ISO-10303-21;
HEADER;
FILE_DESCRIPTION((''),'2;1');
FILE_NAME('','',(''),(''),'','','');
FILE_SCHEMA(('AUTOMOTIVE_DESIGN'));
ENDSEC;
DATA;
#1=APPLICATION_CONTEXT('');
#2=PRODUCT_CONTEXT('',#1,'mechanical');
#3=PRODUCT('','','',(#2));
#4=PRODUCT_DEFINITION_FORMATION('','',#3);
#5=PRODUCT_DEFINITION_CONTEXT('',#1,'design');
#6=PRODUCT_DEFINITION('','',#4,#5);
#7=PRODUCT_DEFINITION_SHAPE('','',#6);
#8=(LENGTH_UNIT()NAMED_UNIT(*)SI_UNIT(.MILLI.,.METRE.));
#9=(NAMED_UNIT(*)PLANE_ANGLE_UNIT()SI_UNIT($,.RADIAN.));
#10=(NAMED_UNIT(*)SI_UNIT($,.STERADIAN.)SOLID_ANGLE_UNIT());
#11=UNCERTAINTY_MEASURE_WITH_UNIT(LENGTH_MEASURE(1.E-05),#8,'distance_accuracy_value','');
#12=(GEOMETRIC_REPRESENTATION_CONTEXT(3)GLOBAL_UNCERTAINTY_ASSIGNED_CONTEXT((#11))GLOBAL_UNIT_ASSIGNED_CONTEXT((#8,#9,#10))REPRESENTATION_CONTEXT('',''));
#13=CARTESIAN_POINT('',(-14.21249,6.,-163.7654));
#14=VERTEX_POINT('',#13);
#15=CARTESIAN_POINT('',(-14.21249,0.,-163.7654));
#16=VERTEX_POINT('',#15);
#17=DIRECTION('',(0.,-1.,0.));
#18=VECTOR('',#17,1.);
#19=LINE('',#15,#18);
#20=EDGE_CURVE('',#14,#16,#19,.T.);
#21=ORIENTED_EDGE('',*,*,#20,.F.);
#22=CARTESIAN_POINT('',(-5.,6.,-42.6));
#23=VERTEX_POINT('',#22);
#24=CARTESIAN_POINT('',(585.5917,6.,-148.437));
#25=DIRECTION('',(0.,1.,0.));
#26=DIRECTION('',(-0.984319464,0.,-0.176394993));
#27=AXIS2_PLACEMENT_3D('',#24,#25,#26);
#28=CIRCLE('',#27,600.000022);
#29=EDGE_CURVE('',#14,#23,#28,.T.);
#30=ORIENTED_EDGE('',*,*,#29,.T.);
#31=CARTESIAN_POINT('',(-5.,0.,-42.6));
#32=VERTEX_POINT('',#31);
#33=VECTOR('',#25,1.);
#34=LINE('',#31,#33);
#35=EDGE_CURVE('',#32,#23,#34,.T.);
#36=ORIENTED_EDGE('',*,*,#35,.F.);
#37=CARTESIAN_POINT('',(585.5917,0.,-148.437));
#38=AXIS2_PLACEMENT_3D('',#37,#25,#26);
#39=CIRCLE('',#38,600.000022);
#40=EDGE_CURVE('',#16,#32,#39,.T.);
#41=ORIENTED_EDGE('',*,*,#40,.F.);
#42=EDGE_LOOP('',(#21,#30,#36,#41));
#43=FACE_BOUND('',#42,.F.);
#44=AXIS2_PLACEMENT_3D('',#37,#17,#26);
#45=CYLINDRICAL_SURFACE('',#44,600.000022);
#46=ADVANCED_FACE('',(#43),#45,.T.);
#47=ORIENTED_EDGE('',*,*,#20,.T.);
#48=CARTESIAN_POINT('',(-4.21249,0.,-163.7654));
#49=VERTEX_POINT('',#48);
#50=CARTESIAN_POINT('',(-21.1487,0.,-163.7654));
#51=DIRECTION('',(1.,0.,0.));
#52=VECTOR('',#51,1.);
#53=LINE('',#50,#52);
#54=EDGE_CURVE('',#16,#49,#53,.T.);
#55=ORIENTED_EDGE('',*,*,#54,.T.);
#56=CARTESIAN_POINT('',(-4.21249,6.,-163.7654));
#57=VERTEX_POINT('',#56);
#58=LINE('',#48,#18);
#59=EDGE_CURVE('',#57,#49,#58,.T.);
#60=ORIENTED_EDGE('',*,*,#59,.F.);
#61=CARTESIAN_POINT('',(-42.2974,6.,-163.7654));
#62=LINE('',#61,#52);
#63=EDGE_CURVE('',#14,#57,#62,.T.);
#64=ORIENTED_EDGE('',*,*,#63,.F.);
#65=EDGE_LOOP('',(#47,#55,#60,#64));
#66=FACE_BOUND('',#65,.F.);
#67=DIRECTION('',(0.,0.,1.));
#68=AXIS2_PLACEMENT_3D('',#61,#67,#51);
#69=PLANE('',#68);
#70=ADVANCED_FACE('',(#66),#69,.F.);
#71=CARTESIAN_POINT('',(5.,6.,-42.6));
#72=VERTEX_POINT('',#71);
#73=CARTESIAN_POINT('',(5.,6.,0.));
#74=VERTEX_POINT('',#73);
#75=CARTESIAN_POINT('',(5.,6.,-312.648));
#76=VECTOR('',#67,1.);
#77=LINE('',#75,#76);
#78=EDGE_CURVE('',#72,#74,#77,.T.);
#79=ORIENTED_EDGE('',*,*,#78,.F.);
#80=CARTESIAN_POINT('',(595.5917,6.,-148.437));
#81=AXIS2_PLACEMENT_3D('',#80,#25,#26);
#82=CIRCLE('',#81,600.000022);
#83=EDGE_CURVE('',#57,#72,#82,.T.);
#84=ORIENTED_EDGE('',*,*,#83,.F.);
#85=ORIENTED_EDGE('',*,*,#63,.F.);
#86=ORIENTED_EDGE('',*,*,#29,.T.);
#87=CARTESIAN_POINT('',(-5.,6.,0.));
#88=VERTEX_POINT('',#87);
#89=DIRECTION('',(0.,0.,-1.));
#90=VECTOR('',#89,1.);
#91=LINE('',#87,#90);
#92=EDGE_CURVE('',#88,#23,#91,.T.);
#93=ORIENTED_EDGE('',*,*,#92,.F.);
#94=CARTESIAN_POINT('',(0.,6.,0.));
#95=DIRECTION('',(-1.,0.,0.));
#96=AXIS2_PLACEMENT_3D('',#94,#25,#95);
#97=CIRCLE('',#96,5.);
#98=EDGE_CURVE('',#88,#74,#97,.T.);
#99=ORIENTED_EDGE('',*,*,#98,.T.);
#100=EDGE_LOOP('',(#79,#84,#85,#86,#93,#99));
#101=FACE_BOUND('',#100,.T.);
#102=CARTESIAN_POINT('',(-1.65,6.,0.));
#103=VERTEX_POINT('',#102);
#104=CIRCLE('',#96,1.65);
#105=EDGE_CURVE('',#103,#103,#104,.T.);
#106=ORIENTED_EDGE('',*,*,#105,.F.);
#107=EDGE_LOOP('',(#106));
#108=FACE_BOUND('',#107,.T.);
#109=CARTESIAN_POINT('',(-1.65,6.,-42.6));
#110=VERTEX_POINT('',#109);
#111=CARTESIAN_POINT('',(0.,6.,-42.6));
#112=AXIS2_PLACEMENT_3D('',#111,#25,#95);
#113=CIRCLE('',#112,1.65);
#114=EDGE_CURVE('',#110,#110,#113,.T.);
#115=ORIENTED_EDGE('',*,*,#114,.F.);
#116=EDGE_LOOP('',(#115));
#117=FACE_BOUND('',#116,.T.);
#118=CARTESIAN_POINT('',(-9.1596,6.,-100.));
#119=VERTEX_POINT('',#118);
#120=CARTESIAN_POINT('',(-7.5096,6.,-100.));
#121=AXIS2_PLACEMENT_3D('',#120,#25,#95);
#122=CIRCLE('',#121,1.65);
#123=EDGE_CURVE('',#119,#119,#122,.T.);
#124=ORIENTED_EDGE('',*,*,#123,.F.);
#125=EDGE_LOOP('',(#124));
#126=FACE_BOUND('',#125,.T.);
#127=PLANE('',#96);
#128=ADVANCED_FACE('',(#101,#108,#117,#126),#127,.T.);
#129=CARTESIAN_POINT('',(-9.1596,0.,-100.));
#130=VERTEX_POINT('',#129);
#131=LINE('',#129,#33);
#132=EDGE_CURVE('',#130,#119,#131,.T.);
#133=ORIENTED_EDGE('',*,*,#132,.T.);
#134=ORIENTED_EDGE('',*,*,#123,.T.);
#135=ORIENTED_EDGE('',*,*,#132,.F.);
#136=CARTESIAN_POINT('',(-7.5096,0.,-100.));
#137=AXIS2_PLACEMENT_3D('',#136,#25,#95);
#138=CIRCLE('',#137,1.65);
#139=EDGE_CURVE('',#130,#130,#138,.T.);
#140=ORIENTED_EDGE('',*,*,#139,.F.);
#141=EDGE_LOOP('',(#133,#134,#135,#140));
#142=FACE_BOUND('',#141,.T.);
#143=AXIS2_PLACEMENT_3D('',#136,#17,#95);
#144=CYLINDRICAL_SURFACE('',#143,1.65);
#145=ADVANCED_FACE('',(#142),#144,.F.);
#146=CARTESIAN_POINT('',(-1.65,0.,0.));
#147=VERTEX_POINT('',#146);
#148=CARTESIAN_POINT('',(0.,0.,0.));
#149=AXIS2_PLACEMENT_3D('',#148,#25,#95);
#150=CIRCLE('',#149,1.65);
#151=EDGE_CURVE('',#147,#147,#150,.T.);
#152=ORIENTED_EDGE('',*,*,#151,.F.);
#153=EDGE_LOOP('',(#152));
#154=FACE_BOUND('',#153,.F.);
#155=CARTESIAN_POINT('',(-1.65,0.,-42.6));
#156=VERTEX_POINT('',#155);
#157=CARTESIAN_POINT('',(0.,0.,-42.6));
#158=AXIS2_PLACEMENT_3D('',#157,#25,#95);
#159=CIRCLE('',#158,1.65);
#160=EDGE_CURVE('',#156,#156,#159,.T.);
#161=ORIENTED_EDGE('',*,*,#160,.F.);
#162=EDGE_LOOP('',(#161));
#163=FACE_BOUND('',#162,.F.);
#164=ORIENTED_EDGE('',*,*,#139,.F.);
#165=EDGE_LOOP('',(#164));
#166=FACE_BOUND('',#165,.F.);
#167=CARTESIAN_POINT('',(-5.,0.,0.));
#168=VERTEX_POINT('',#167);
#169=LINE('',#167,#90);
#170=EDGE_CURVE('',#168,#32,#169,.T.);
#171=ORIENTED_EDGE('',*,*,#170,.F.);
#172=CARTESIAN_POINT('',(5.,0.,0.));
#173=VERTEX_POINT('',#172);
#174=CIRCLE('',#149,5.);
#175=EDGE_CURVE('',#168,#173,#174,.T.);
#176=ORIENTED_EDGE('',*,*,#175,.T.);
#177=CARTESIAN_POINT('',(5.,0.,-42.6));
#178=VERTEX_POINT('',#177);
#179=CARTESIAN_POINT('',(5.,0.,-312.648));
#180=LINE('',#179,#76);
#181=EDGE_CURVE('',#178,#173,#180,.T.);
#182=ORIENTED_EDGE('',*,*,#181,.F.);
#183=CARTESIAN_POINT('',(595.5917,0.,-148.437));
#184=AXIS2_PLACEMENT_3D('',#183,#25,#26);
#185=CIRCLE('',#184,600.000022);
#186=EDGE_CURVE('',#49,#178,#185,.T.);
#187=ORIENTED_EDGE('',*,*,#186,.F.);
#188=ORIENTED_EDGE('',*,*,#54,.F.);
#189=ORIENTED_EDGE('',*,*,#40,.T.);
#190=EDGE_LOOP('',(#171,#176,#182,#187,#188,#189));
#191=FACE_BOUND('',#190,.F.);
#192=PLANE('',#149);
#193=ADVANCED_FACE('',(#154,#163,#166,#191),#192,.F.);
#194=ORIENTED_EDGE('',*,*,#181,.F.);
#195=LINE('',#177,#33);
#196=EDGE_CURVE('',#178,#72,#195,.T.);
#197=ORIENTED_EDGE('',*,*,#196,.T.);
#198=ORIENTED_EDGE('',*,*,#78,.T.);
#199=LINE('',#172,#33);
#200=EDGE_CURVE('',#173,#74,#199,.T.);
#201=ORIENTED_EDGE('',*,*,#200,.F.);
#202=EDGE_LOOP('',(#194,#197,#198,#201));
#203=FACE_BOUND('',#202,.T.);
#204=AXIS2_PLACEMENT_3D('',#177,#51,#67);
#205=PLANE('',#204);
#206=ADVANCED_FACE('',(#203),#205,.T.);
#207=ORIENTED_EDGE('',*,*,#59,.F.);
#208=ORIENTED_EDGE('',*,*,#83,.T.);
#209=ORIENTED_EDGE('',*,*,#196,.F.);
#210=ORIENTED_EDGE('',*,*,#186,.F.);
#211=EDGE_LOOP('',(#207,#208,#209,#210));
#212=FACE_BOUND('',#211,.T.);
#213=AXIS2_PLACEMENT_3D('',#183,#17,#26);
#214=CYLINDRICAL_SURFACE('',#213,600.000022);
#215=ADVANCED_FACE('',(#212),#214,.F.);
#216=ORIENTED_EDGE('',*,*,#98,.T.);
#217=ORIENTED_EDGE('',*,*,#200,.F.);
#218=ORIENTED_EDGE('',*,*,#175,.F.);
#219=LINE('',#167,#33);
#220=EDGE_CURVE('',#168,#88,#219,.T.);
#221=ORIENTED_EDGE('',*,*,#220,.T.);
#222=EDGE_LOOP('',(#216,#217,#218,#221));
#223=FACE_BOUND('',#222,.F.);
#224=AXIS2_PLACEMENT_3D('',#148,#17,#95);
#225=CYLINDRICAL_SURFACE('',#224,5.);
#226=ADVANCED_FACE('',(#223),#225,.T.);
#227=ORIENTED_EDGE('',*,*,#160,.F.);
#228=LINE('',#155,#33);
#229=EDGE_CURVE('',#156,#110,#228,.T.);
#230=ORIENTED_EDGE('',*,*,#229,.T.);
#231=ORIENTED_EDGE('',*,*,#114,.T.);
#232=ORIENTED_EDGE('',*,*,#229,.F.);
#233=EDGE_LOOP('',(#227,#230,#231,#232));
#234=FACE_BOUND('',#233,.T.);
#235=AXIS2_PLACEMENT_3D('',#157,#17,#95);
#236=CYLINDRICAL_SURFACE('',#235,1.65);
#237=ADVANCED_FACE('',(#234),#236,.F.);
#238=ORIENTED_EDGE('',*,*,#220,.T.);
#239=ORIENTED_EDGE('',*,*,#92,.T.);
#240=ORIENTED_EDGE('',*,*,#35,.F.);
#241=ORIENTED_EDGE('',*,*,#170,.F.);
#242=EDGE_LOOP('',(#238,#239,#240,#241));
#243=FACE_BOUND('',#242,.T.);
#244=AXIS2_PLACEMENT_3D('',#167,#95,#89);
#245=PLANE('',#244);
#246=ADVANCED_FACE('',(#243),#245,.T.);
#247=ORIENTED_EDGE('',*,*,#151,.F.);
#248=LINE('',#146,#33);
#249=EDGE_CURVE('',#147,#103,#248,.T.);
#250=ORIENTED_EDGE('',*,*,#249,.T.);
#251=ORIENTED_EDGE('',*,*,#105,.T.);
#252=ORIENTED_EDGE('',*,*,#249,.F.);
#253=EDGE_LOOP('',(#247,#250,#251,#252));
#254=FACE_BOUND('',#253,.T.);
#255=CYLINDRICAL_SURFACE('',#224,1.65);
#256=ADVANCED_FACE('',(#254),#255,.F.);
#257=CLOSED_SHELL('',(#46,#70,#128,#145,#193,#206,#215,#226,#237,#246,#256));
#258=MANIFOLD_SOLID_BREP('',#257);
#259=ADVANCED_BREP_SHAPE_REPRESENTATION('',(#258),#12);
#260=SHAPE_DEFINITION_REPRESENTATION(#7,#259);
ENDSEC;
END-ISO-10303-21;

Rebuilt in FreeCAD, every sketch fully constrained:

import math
import FreeCAD as App
import Part
import Sketcher

V = App.Vector


def add_polygon(sketch, points):
    """Adds a closed chain of lines whose ends are joined by coincident constraints."""
    first, n = sketch.GeometryCount, len(points)
    for a, b in zip(points, points[1:] + points[:1]):
        sketch.addGeometry(Part.LineSegment(App.Vector(*a, 0), App.Vector(*b, 0)), False)
    for i in range(n):
        sketch.addConstraint(Sketcher.Constraint("Coincident", first + i, 2, first + (i + 1) % n, 1))

doc = App.newDocument("Part")
body = doc.addObject("PartDesign::Body", "Body")

# Sketch on XZ plane
sketch1 = doc.addObject("Sketcher::SketchObject", "Sketch")
body.addObject(sketch1)
sketch1.AttachmentSupport = (doc.XZ_Plane, [""])
sketch1.MapMode = "FlatFace"
sketch1.addGeometry([
    Part.LineSegment(V(-5, -42.6, 0), V(-5, 0, 0)),  # 0
    Part.ArcOfCircle(Part.Circle(V(0, 0, 0), V(0, 0, 1), 5), math.radians(0), math.radians(180)),  # 1
    Part.LineSegment(V(5, 0, 0), V(5, -42.6, 0)),  # 2
    Part.ArcOfCircle(Part.Circle(V(595.6, -148.4, 0), V(0, 0, 1), 600), math.radians(170), math.radians(190)),  # 3
    Part.LineSegment(V(5, -254.3, 0), V(5, -312.6, 0)),  # 4
    Part.ArcOfCircle(Part.Circle(V(0, -312.6, 0), V(0, 0, 1), 5), math.radians(180), math.radians(360)),  # 5
    Part.LineSegment(V(-5, -312.6, 0), V(-5, -254.3, 0)),  # 6
    Part.ArcOfCircle(Part.Circle(V(585.6, -148.4, 0), V(0, 0, 1), 600), math.radians(170), math.radians(190)),  # 7
    Part.Circle(V(0, -312.6, 0), V(0, 0, 1), 1.6),  # 8
    Part.Circle(V(0, -254.3, 0), V(0, 0, 1), 1.6),  # 9
    Part.Circle(V(0, -42.6, 0), V(0, 0, 1), 1.6),  # 10
    Part.Circle(V(0, 0, 0), V(0, 0, 1), 1.6),  # 11
    Part.Circle(V(-7.5, -100, 0), V(0, 0, 1), 1.6),  # 12
], False)
sketch1.addConstraint([
    Sketcher.Constraint("Tangent", 0, 2, 1, 2),
    Sketcher.Constraint("Tangent", 1, 1, 2, 1),
    Sketcher.Constraint("Coincident", 2, 2, 3, 1),
    Sketcher.Constraint("Coincident", 3, 2, 4, 1),
    Sketcher.Constraint("Tangent", 4, 2, 5, 2),
    Sketcher.Constraint("Tangent", 5, 1, 6, 1),
    Sketcher.Constraint("Coincident", 6, 2, 7, 2),
    Sketcher.Constraint("Coincident", 7, 1, 0, 1),
    Sketcher.Constraint("Vertical", 0),
    Sketcher.Constraint("Vertical", 2),
    Sketcher.Constraint("Vertical", 4),
    Sketcher.Constraint("Vertical", 6),
    Sketcher.Constraint("Coincident", 1, 3, -1, 1),
    Sketcher.Constraint("Coincident", 11, 3, -1, 1),
    Sketcher.Constraint("Coincident", 8, 3, 5, 3),
    Sketcher.Constraint("Equal", 1, 5),
    Sketcher.Constraint("Equal", 3, 7),
    Sketcher.Constraint("Equal", 8, 9),
    Sketcher.Constraint("Equal", 9, 10),
    Sketcher.Constraint("Equal", 10, 11),
    Sketcher.Constraint("Equal", 11, 12),
    Sketcher.Constraint("Symmetric", 3, 2, 6, 2, -2),
    Sketcher.Constraint("PointOnObject", 9, 3, -2),
    Sketcher.Constraint("PointOnObject", 10, 3, -2),
    Sketcher.Constraint("Horizontal", 3, 3, 7, 3),
    Sketcher.Constraint("Horizontal", 10, 3, 2, 2),
    Sketcher.Constraint("Horizontal", 9, 3, 3, 2),
    Sketcher.Constraint("Radius", 1, 5.0),
    Sketcher.Constraint("Radius", 3, 600.0),
    Sketcher.Constraint("Diameter", 8, 3.3),
    Sketcher.Constraint("DistanceY", 0, 1, 0, 2, 42.6),
    Sketcher.Constraint("DistanceY", 12, 3, -1, 1, 100.0),
    Sketcher.Constraint("DistanceY", 5, 3, -1, 1, 312.648),
    Sketcher.Constraint("DistanceY", 9, 3, -1, 1, 254.274),
    Sketcher.Constraint("DistanceX", 12, 3, -1, 1, 7.5096),
])
pad1 = doc.addObject("PartDesign::Pad", "Pad")
body.addObject(pad1)
pad1.Profile = sketch1
pad1.Length = 6
pad1.Reversed = True

# Sketch on XZ plane
sketch2 = doc.addObject("Sketcher::SketchObject", "Sketch001")
body.addObject(sketch2)
sketch2.AttachmentSupport = (doc.XZ_Plane, [""])
sketch2.MapMode = "FlatFace"
sketch2.AttachmentOffset = App.Placement(V(0, 0, -6), App.Rotation())
add_polygon(sketch2, [(118, -337), (-109, -337), (-109, 100), (118, 100)])  # lines 0-3
add_polygon(sketch2, [(-42, 16), (-42, -164), (39, -164), (39, 16)])  # lines 4-7
sketch2.addConstraint([
    Sketcher.Constraint("Horizontal", 0),
    Sketcher.Constraint("Vertical", 1),
    Sketcher.Constraint("Horizontal", 2),
    Sketcher.Constraint("Vertical", 3),
    Sketcher.Constraint("Vertical", 4),
    Sketcher.Constraint("Horizontal", 5),
    Sketcher.Constraint("Vertical", 6),
    Sketcher.Constraint("Horizontal", 7),
    Sketcher.Constraint("DistanceX", 0, 2, 0, 1, 226.7756),
    Sketcher.Constraint("DistanceX", 5, 1, 5, 2, 81.5078),
    Sketcher.Constraint("DistanceY", 1, 1, 1, 2, 437.7755),
    Sketcher.Constraint("DistanceY", 4, 2, 4, 1, 179.4485),
    Sketcher.Constraint("DistanceY", 0, 2, -1, 1, 337.298),
    Sketcher.Constraint("DistanceY", -1, 1, 6, 2, 15.683),
    Sketcher.Constraint("DistanceX", 0, 2, -1, 1, 108.6868),
    Sketcher.Constraint("DistanceX", 4, 2, -1, 1, 42.2974),
])
pocket1 = doc.addObject("PartDesign::Pocket", "Pocket")
body.addObject(pocket1)
pocket1.Profile = sketch2
pocket1.Length = 10
pocket1.Reversed = True

doc.recompute()
